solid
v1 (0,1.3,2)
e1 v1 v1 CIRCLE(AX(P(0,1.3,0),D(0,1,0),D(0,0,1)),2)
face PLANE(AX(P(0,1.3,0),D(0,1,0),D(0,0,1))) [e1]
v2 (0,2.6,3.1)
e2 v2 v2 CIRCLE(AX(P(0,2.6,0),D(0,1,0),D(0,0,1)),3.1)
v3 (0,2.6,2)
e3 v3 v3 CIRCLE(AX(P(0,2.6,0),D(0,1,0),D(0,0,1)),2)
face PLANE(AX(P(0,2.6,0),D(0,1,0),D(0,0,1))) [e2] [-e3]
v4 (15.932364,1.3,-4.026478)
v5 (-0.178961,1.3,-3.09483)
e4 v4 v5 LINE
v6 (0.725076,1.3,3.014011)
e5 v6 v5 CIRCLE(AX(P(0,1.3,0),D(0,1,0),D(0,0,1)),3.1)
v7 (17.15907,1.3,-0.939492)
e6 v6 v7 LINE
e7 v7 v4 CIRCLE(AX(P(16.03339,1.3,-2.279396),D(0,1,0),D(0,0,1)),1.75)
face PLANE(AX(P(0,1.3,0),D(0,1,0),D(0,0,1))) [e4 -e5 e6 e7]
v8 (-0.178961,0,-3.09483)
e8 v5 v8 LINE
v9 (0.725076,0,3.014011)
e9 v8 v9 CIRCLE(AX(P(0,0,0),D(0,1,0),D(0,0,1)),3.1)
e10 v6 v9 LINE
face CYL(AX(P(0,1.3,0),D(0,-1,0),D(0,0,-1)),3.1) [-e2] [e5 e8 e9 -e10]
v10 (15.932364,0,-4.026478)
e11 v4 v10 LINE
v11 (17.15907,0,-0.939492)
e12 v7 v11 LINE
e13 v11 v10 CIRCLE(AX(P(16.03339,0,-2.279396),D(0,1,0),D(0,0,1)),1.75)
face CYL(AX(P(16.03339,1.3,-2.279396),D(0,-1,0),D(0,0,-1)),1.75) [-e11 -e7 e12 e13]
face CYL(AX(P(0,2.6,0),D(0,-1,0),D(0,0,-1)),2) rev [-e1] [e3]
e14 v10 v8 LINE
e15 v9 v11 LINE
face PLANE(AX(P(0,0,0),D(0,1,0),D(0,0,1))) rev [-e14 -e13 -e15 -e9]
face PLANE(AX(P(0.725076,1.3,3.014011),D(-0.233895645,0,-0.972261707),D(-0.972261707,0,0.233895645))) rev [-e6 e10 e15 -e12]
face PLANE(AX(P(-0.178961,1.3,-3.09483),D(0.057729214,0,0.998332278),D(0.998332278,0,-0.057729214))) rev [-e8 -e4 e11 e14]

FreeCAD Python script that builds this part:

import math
import FreeCAD as App
import Part
import Sketcher

V = App.Vector
Q = App.Units.Quantity

doc = App.newDocument("Part")
body = doc.addObject("PartDesign::Body", "Body")

sketch1 = body.newObject("Sketcher::SketchObject", "Sketch")
sketch1.AttachmentSupport = (doc.getObject("XZ_Plane"), [""])
sketch1.MapMode = "FlatFace"
sketch1.addGeometry(Part.LineSegment(V(15.9, -4, 0), V(-0.2, -3.1, 0)), False)
sketch1.addGeometry(Part.ArcOfCircle(Part.Circle(V(0, 0, 0), V(0, 0, 1), 3.1), math.radians(76), math.radians(267)), False)
sketch1.addGeometry(Part.LineSegment(V(0.7, 3, 0), V(17.2, -0.9, 0)), False)
sketch1.addGeometry(Part.ArcOfCircle(Part.Circle(V(16, -2.3, 0), V(0, 0, 1), 1.8), math.radians(-93), math.radians(50)), False)
sketch1.addConstraint(Sketcher.Constraint("Tangent", 0, 2, 1, 2))
sketch1.addConstraint(Sketcher.Constraint("Tangent", 1, 1, 2, 1))
sketch1.addConstraint(Sketcher.Constraint("Coincident", 2, 2, 3, 2))
sketch1.addConstraint(Sketcher.Constraint("Tangent", 3, 1, 0, 1))
sketch1.addConstraint(Sketcher.Constraint("Coincident", 1, 3, -1, 1))
sketch1.addConstraint(Sketcher.Constraint("Radius", 1, Q("3.1 mm")))
sketch1.addConstraint(Sketcher.Constraint("Radius", 3, Q("1.75 mm")))
sketch1.addConstraint(Sketcher.Constraint("Distance", 0, Q("16.138238 mm")))
sketch1.addConstraint(Sketcher.Constraint("Distance", 2, Q("16.902849 mm")))
sketch1.addConstraint(Sketcher.Constraint("DistanceX", -1, 1, 3, 3, Q("16.03339 mm")))
pad1 = body.newObject("PartDesign::Pad", "Pad")
pad1.Profile = sketch1
pad1.Length = 1.3
pad1.Reversed = True

sketch2 = body.newObject("Sketcher::SketchObject", "Sketch001")
sketch2.AttachmentSupport = (doc.getObject("XZ_Plane"), [""])
sketch2.MapMode = "FlatFace"
sketch2.AttachmentOffset = App.Placement(V(0, 0, -1.3), App.Rotation())
sketch2.addGeometry(Part.Circle(V(0, 0, 0), V(0, 0, 1), 3.1), False)
sketch2.addGeometry(Part.Circle(V(0, 0, 0), V(0, 0, 1), 2), False)
sketch2.addConstraint(Sketcher.Constraint("Coincident", 0, 3, -1, 1))
sketch2.addConstraint(Sketcher.Constraint("Coincident", 1, 3, -1, 1))
sketch2.addConstraint(Sketcher.Constraint("Diameter", 1, Q("4 mm")))
sketch2.addConstraint(Sketcher.Constraint("Diameter", 0, Q("6.2 mm")))
pad2 = body.newObject("PartDesign::Pad", "Pad001")
pad2.Profile = sketch2
pad2.Length = 1.3
pad2.Reversed = True

doc.recompute()
